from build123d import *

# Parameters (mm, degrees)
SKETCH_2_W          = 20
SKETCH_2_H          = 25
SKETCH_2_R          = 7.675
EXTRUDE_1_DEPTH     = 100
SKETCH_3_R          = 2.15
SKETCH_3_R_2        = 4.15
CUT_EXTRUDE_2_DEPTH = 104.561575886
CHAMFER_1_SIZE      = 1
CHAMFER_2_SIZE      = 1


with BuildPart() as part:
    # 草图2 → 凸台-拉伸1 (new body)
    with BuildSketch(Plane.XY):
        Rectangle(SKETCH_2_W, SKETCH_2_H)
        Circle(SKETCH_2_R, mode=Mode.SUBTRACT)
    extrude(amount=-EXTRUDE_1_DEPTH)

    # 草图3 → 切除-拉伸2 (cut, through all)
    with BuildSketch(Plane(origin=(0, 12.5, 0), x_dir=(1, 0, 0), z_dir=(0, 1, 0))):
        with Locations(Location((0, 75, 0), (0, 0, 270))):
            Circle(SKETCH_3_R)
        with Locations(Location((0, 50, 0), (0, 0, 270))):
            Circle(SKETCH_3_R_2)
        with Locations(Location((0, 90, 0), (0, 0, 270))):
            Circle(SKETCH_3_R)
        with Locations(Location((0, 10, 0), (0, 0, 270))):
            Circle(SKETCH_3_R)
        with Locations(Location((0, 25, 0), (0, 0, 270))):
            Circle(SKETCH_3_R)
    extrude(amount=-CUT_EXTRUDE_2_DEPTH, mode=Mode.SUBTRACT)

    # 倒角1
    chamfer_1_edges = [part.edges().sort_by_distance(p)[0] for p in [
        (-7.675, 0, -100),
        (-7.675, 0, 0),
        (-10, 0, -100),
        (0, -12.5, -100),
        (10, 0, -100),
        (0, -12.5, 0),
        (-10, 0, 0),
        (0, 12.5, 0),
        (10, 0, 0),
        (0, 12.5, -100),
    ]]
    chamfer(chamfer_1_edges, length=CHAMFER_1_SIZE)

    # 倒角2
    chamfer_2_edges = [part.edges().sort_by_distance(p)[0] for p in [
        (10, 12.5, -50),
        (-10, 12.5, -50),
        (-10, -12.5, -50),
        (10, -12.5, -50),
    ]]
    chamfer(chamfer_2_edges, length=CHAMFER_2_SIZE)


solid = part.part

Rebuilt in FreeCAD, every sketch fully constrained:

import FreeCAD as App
import Part
import Sketcher

V = App.Vector


def edges_at(feature, points):
    """Names of the edges that pass closest to the given points."""
    edges = feature.Shape.Edges
    near = lambda p: min(range(len(edges)), key=lambda i: edges[i].distToShape(Part.Vertex(*p))[0])
    return sorted({f"Edge{near(p) + 1}" for p in points})


def add_polygon(sketch, points):
    """Adds a closed chain of lines whose ends are joined by coincident constraints."""
    first, n = sketch.GeometryCount, len(points)
    for a, b in zip(points, points[1:] + points[:1]):
        sketch.addGeometry(Part.LineSegment(App.Vector(*a, 0), App.Vector(*b, 0)), False)
    for i in range(n):
        sketch.addConstraint(Sketcher.Constraint("Coincident", first + i, 2, first + (i + 1) % n, 1))

doc = App.newDocument("Part")
body = doc.addObject("PartDesign::Body", "Body")

# Sketch on XY plane
sketch1 = doc.addObject("Sketcher::SketchObject", "Sketch")
body.addObject(sketch1)
sketch1.AttachmentSupport = (doc.XY_Plane, [""])
sketch1.MapMode = "FlatFace"
add_polygon(sketch1, [(-10, 12), (-10, -12), (10, -12), (10, 12)])  # lines 0-3
sketch1.addGeometry(Part.Circle(V(0, 0, 0), V(0, 0, 1), 8), False)  # 4
sketch1.addConstraint([
    Sketcher.Constraint("Vertical", 0),
    Sketcher.Constraint("Horizontal", 1),
    Sketcher.Constraint("Vertical", 2),
    Sketcher.Constraint("Horizontal", 3),
    Sketcher.Constraint("Coincident", 4, 3, -1, 1),
    Sketcher.Constraint("Symmetric", 0, 2, 2, 2, -1, 1),
    Sketcher.Constraint("Diameter", 4, 15.35),
    Sketcher.Constraint("DistanceX", 1, 1, 1, 2, 20.0),
    Sketcher.Constraint("DistanceY", 0, 2, 0, 1, 25.0),
])
pad1 = doc.addObject("PartDesign::Pad", "Pad")
body.addObject(pad1)
pad1.Profile = sketch1
pad1.Length = 100
pad1.Reversed = True

# Sketch on XZ plane
sketch2 = doc.addObject("Sketcher::SketchObject", "Sketch001")
body.addObject(sketch2)
sketch2.AttachmentSupport = (doc.XZ_Plane, [""])
sketch2.MapMode = "FlatFace"
sketch2.AttachmentOffset = App.Placement(V(0, 0, -12.5), App.Rotation())
sketch2.addGeometry([
    Part.Circle(V(0, -75, 0), V(0, 0, 1), 2.1),  # 0
    Part.Circle(V(0, -50, 0), V(0, 0, 1), 4.2),  # 1
    Part.Circle(V(0, -90, 0), V(0, 0, 1), 2.1),  # 2
    Part.Circle(V(0, -10, 0), V(0, 0, 1), 2.1),  # 3
    Part.Circle(V(0, -25, 0), V(0, 0, 1), 2.1),  # 4
], False)
sketch2.addConstraint([
    Sketcher.Constraint("Equal", 0, 2),
    Sketcher.Constraint("Equal", 2, 3),
    Sketcher.Constraint("Equal", 3, 4),
    Sketcher.Constraint("PointOnObject", 0, 3, -2),
    Sketcher.Constraint("PointOnObject", 1, 3, -2),
    Sketcher.Constraint("PointOnObject", 2, 3, -2),
    Sketcher.Constraint("PointOnObject", 3, 3, -2),
    Sketcher.Constraint("PointOnObject", 4, 3, -2),
    Sketcher.Constraint("Diameter", 0, 4.3),
    Sketcher.Constraint("Diameter", 1, 8.3),
    Sketcher.Constraint("DistanceY", 0, 3, -1, 1, 75.0),
    Sketcher.Constraint("DistanceY", 1, 3, -1, 1, 50.0),
    Sketcher.Constraint("DistanceY", 2, 3, -1, 1, 90.0),
    Sketcher.Constraint("DistanceY", 3, 3, -1, 1, 10.0),
    Sketcher.Constraint("DistanceY", 4, 3, -1, 1, 25.0),
])
pocket1 = doc.addObject("PartDesign::Pocket", "Pocket")
body.addObject(pocket1)
pocket1.Profile = sketch2
pocket1.Type = "ThroughAll"
pocket1.Reversed = True
doc.recompute()

chamfer = doc.addObject("PartDesign::Chamfer", "Chamfer")
body.addObject(chamfer)
chamfer.Base = (pocket1, edges_at(pocket1, [
    (-7.675, 0, -100),
    (-7.675, 0, 0),
    (-10, 0, -100),
    (0, -12.5, -100),
    (10, 0, -100),
    (0, -12.5, 0),
    (-10, 0, 0),
    (0, 12.5, 0),
    (10, 0, 0),
    (0, 12.5, -100),
]))
chamfer.Size = 1
doc.recompute()

chamfer2 = doc.addObject("PartDesign::Chamfer", "Chamfer001")
body.addObject(chamfer2)
chamfer2.Base = (chamfer, edges_at(chamfer, [
    (10, 12.5, -50),
    (-10, 12.5, -50),
    (-10, -12.5, -50),
    (10, -12.5, -50),
]))
chamfer2.Size = 1

doc.recompute()
